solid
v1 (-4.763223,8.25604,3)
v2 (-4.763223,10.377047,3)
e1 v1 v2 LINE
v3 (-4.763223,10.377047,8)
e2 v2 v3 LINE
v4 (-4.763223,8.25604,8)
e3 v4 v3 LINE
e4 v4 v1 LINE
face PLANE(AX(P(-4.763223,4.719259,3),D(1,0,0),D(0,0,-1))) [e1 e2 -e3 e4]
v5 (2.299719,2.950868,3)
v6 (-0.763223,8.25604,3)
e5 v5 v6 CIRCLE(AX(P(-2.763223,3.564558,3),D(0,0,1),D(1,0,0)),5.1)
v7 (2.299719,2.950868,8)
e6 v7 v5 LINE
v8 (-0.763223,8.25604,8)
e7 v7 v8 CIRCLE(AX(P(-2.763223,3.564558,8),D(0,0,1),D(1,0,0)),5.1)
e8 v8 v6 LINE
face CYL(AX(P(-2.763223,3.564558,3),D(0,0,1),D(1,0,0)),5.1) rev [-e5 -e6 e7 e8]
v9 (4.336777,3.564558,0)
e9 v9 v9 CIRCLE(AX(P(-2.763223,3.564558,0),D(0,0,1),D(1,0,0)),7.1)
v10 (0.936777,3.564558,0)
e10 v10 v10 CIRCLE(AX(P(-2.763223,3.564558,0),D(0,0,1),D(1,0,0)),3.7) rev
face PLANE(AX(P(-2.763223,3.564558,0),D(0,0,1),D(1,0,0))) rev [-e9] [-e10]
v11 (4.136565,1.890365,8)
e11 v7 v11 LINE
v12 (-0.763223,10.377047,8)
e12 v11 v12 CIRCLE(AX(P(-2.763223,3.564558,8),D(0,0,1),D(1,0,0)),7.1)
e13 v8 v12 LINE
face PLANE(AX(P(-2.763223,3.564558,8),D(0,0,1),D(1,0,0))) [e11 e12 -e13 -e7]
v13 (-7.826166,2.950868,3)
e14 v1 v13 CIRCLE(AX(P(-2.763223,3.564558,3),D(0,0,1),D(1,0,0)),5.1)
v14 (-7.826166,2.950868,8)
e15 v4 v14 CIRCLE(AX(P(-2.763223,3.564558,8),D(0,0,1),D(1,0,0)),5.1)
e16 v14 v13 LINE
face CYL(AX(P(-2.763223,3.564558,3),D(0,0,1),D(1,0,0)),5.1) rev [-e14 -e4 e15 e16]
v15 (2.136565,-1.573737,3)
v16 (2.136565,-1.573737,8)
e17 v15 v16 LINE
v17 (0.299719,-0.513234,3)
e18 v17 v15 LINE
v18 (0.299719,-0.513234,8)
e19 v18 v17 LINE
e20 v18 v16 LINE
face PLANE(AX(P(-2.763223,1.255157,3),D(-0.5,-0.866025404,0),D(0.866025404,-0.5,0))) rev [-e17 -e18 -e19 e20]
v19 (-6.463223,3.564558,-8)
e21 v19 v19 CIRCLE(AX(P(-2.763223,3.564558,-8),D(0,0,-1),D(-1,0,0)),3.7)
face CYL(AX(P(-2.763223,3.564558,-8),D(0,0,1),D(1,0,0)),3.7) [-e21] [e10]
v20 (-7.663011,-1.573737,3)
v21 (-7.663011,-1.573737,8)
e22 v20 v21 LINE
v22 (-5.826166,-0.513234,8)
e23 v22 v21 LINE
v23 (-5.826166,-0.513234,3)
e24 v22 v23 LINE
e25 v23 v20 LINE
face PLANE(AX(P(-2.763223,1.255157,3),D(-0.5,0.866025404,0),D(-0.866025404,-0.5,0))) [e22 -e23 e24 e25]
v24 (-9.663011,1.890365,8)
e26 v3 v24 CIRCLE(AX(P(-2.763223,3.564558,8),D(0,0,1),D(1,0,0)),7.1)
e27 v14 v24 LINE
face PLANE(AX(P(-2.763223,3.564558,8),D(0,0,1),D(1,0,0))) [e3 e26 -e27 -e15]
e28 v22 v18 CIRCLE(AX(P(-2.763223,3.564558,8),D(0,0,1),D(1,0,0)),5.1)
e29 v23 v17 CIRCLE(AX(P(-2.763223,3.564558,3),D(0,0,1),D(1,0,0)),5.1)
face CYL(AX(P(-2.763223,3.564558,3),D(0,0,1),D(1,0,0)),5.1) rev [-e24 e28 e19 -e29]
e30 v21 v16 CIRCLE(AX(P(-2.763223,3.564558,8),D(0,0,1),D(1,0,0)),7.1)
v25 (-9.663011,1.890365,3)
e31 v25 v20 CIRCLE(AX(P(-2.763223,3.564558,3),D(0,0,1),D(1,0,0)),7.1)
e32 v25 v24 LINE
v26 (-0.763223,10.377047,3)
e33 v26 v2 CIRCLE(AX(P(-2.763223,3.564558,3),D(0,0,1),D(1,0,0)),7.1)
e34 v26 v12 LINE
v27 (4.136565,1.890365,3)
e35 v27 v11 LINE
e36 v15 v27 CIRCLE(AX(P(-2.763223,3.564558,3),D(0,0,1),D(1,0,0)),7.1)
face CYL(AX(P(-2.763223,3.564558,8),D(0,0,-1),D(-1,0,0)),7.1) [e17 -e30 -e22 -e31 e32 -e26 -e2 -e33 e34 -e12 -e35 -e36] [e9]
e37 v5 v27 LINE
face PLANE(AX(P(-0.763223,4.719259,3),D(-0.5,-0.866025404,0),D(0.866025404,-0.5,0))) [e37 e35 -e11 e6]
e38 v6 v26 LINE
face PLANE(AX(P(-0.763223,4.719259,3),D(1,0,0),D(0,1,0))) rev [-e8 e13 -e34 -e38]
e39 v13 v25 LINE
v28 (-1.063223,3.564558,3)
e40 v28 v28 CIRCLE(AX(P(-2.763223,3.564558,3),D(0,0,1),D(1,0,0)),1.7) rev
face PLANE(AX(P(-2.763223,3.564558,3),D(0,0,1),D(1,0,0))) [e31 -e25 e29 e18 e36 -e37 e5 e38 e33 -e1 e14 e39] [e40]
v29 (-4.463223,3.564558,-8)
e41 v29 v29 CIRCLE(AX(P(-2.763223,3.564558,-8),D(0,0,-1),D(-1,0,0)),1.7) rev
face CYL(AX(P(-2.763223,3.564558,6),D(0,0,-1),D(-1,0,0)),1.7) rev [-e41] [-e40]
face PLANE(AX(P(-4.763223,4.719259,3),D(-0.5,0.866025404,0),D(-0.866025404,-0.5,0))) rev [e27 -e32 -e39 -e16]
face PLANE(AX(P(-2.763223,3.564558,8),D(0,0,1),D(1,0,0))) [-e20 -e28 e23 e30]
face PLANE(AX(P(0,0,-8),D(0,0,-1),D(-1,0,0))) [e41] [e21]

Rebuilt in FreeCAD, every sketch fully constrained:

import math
import FreeCAD as App
import Part
import Sketcher
Q = App.Units.Quantity

doc = App.newDocument("Part")
body = doc.addObject("PartDesign::Body", "Body")

# Sketch on XY plane
sketch1 = doc.addObject("Sketcher::SketchObject", "Sketch")
body.addObject(sketch1)
sketch1.AttachmentSupport = (doc.XY_Plane, [""])
sketch1.MapMode = "FlatFace"
sketch1.addGeometry(Part.Circle(App.Vector(-3, 4, 0), App.Vector(0, 0, 1), 7), False)
sketch1.addConstraint([
    Sketcher.Constraint("Diameter", 0, 14.2),
    Sketcher.Constraint("DistanceY", -1, 1, 0, 3, 3.564558),
    Sketcher.Constraint("DistanceX", 0, 3, -1, 1, 2.763223),
])
pad1 = doc.addObject("PartDesign::Pad", "Pad")
body.addObject(pad1)
pad1.Profile = sketch1
pad1.Length = 8

# Sketch on XY plane
sketch2 = doc.addObject("Sketcher::SketchObject", "Sketch001")
body.addObject(sketch2)
sketch2.AttachmentSupport = (doc.XY_Plane, [""])
sketch2.MapMode = "FlatFace"
sketch2.addGeometry(Part.Circle(App.Vector(-2.8, 3.6, 0), App.Vector(0, 0, 1), 1.7), False)
sketch2.addConstraint([
    Sketcher.Constraint("Diameter", 0, 3.4),
    Sketcher.Constraint("DistanceY", -1, 1, 0, 3, 3.564558),
    Sketcher.Constraint("DistanceX", 0, 3, -1, 1, 2.763223),
])
pocket1 = doc.addObject("PartDesign::Pocket", "Pocket")
body.addObject(pocket1)
pocket1.Profile = sketch2
pocket1.Length = 6
pocket1.Reversed = True

# Sketch on XY plane
sketch3 = doc.addObject("Sketcher::SketchObject", "Sketch002")
body.addObject(sketch3)
sketch3.AttachmentSupport = (doc.XY_Plane, [""])
sketch3.MapMode = "FlatFace"
sketch3.AttachmentOffset = App.Placement(App.Vector(0, 0, 8), App.Rotation())
sketch3.addGeometry(Part.Circle(App.Vector(-3, 4, 0), App.Vector(0, 0, 1), 5), False)
sketch3.addConstraint([
    Sketcher.Constraint("Diameter", 0, 10.2),
    Sketcher.Constraint("DistanceY", -1, 1, 0, 3, 3.564558),
    Sketcher.Constraint("DistanceX", 0, 3, -1, 1, 2.763223),
])
pocket2 = doc.addObject("PartDesign::Pocket", "Pocket001")
body.addObject(pocket2)
pocket2.Profile = sketch3
pocket2.Length = 5

# Sketch on XY plane
sketch4 = doc.addObject("Sketcher::SketchObject", "Sketch003")
body.addObject(sketch4)
sketch4.AttachmentSupport = (doc.XY_Plane, [""])
sketch4.MapMode = "FlatFace"
sketch4.addGeometry([
    Part.Circle(App.Vector(-2.8, 3.6, 0), App.Vector(0, 0, 1), 3.7),
    Part.Circle(App.Vector(-2.8, 3.6, 0), App.Vector(0, 0, 1), 1.7),
], False)
sketch4.addConstraint([
    Sketcher.Constraint("Coincident", 1, 3, 0, 3),
    Sketcher.Constraint("Diameter", 0, 7.4),
    Sketcher.Constraint("Diameter", 1, 3.4),
    Sketcher.Constraint("DistanceY", -1, 1, 0, 3, 3.564558),
    Sketcher.Constraint("DistanceX", 0, 3, -1, 1, 2.763223),
])
pad2 = doc.addObject("PartDesign::Pad", "Pad001")
body.addObject(pad2)
pad2.Profile = sketch4
pad2.Length = 8
pad2.Reversed = True

# Sketch on XY plane
sketch5 = doc.addObject("Sketcher::SketchObject", "Sketch004")
body.addObject(sketch5)
sketch5.AttachmentSupport = (doc.XY_Plane, [""])
sketch5.MapMode = "FlatFace"
sketch5.AttachmentOffset = App.Placement(App.Vector(0, 0, 8), App.Rotation())
sketch5.addGeometry([
    Part.LineSegment(App.Vector(-0.8, 4.7, 0), App.Vector(-0.8, 10.4, 0)),  # 0
    Part.ArcOfCircle(Part.Circle(App.Vector(-2.8, 3.6, 0), App.Vector(0, 0, 1), 7.1), math.radians(74), math.radians(106)),  # 1
    Part.LineSegment(App.Vector(-4.8, 10.4, 0), App.Vector(-4.8, 4.7, 0)),  # 2
    Part.LineSegment(App.Vector(-4.8, 4.7, 0), App.Vector(-9.7, 1.9, 0)),  # 3
    Part.ArcOfCircle(Part.Circle(App.Vector(-2.8, 3.6, 0), App.Vector(0, 0, 1), 7.1), math.radians(-166), math.radians(-134)),  # 4
    Part.LineSegment(App.Vector(-7.7, -1.6, 0), App.Vector(-2.8, 1.3, 0)),  # 5
    Part.LineSegment(App.Vector(-2.8, 1.3, 0), App.Vector(2.1, -1.6, 0)),  # 6
    Part.ArcOfCircle(Part.Circle(App.Vector(-2.8, 3.6, 0), App.Vector(0, 0, 1), 7.1), math.radians(-46), math.radians(-14)),  # 7
    Part.LineSegment(App.Vector(4.1, 1.9, 0), App.Vector(-0.8, 4.7, 0)),  # 8
], False)
sketch5.addConstraint([
    Sketcher.Constraint("Coincident", 0, 2, 1, 1),
    Sketcher.Constraint("Coincident", 1, 2, 2, 1),
    Sketcher.Constraint("Coincident", 2, 2, 3, 1),
    Sketcher.Constraint("Coincident", 3, 2, 4, 1),
    Sketcher.Constraint("Coincident", 4, 2, 5, 1),
    Sketcher.Constraint("Coincident", 5, 2, 6, 1),
    Sketcher.Constraint("Coincident", 6, 2, 7, 1),
    Sketcher.Constraint("Coincident", 7, 2, 8, 1),
    Sketcher.Constraint("Coincident", 8, 2, 0, 1),
    Sketcher.Constraint("Vertical", 0),
    Sketcher.Constraint("Vertical", 2),
    Sketcher.Constraint("Coincident", 4, 3, 1, 3),
    Sketcher.Constraint("Coincident", 7, 3, 1, 3),
    Sketcher.Constraint("Equal", 1, 4),
    Sketcher.Constraint("Equal", 4, 7),
    Sketcher.Constraint("Parallel", 3, 5),
    Sketcher.Constraint("Parallel", 6, 8),
    Sketcher.Constraint("Horizontal", 0, 2, 1, 2),
    Sketcher.Constraint("Horizontal", 4, 2, 6, 2),
    Sketcher.Constraint("Horizontal", 3, 2, 7, 2),
    Sketcher.Constraint("Horizontal", 2, 2, 8, 2),
    Sketcher.Constraint("Equal", 3, 5),
    Sketcher.Constraint("Radius", 1, 7.1),
    Sketcher.Constraint("Angle", 3, Q("-150 deg")),
    Sketcher.Constraint("DistanceX", 4, 3, 0, 2, 2.0),
    Sketcher.Constraint("DistanceY", 7, 3, 2, 2, 1.154701),
    Sketcher.Constraint("DistanceY", -1, 1, 1, 3, 3.564558),
    Sketcher.Constraint("DistanceX", 3, 2, -1, 1, 9.663011),
])
pocket3 = doc.addObject("PartDesign::Pocket", "Pocket002")
body.addObject(pocket3)
pocket3.Profile = sketch5
pocket3.Length = 5

doc.recompute()
